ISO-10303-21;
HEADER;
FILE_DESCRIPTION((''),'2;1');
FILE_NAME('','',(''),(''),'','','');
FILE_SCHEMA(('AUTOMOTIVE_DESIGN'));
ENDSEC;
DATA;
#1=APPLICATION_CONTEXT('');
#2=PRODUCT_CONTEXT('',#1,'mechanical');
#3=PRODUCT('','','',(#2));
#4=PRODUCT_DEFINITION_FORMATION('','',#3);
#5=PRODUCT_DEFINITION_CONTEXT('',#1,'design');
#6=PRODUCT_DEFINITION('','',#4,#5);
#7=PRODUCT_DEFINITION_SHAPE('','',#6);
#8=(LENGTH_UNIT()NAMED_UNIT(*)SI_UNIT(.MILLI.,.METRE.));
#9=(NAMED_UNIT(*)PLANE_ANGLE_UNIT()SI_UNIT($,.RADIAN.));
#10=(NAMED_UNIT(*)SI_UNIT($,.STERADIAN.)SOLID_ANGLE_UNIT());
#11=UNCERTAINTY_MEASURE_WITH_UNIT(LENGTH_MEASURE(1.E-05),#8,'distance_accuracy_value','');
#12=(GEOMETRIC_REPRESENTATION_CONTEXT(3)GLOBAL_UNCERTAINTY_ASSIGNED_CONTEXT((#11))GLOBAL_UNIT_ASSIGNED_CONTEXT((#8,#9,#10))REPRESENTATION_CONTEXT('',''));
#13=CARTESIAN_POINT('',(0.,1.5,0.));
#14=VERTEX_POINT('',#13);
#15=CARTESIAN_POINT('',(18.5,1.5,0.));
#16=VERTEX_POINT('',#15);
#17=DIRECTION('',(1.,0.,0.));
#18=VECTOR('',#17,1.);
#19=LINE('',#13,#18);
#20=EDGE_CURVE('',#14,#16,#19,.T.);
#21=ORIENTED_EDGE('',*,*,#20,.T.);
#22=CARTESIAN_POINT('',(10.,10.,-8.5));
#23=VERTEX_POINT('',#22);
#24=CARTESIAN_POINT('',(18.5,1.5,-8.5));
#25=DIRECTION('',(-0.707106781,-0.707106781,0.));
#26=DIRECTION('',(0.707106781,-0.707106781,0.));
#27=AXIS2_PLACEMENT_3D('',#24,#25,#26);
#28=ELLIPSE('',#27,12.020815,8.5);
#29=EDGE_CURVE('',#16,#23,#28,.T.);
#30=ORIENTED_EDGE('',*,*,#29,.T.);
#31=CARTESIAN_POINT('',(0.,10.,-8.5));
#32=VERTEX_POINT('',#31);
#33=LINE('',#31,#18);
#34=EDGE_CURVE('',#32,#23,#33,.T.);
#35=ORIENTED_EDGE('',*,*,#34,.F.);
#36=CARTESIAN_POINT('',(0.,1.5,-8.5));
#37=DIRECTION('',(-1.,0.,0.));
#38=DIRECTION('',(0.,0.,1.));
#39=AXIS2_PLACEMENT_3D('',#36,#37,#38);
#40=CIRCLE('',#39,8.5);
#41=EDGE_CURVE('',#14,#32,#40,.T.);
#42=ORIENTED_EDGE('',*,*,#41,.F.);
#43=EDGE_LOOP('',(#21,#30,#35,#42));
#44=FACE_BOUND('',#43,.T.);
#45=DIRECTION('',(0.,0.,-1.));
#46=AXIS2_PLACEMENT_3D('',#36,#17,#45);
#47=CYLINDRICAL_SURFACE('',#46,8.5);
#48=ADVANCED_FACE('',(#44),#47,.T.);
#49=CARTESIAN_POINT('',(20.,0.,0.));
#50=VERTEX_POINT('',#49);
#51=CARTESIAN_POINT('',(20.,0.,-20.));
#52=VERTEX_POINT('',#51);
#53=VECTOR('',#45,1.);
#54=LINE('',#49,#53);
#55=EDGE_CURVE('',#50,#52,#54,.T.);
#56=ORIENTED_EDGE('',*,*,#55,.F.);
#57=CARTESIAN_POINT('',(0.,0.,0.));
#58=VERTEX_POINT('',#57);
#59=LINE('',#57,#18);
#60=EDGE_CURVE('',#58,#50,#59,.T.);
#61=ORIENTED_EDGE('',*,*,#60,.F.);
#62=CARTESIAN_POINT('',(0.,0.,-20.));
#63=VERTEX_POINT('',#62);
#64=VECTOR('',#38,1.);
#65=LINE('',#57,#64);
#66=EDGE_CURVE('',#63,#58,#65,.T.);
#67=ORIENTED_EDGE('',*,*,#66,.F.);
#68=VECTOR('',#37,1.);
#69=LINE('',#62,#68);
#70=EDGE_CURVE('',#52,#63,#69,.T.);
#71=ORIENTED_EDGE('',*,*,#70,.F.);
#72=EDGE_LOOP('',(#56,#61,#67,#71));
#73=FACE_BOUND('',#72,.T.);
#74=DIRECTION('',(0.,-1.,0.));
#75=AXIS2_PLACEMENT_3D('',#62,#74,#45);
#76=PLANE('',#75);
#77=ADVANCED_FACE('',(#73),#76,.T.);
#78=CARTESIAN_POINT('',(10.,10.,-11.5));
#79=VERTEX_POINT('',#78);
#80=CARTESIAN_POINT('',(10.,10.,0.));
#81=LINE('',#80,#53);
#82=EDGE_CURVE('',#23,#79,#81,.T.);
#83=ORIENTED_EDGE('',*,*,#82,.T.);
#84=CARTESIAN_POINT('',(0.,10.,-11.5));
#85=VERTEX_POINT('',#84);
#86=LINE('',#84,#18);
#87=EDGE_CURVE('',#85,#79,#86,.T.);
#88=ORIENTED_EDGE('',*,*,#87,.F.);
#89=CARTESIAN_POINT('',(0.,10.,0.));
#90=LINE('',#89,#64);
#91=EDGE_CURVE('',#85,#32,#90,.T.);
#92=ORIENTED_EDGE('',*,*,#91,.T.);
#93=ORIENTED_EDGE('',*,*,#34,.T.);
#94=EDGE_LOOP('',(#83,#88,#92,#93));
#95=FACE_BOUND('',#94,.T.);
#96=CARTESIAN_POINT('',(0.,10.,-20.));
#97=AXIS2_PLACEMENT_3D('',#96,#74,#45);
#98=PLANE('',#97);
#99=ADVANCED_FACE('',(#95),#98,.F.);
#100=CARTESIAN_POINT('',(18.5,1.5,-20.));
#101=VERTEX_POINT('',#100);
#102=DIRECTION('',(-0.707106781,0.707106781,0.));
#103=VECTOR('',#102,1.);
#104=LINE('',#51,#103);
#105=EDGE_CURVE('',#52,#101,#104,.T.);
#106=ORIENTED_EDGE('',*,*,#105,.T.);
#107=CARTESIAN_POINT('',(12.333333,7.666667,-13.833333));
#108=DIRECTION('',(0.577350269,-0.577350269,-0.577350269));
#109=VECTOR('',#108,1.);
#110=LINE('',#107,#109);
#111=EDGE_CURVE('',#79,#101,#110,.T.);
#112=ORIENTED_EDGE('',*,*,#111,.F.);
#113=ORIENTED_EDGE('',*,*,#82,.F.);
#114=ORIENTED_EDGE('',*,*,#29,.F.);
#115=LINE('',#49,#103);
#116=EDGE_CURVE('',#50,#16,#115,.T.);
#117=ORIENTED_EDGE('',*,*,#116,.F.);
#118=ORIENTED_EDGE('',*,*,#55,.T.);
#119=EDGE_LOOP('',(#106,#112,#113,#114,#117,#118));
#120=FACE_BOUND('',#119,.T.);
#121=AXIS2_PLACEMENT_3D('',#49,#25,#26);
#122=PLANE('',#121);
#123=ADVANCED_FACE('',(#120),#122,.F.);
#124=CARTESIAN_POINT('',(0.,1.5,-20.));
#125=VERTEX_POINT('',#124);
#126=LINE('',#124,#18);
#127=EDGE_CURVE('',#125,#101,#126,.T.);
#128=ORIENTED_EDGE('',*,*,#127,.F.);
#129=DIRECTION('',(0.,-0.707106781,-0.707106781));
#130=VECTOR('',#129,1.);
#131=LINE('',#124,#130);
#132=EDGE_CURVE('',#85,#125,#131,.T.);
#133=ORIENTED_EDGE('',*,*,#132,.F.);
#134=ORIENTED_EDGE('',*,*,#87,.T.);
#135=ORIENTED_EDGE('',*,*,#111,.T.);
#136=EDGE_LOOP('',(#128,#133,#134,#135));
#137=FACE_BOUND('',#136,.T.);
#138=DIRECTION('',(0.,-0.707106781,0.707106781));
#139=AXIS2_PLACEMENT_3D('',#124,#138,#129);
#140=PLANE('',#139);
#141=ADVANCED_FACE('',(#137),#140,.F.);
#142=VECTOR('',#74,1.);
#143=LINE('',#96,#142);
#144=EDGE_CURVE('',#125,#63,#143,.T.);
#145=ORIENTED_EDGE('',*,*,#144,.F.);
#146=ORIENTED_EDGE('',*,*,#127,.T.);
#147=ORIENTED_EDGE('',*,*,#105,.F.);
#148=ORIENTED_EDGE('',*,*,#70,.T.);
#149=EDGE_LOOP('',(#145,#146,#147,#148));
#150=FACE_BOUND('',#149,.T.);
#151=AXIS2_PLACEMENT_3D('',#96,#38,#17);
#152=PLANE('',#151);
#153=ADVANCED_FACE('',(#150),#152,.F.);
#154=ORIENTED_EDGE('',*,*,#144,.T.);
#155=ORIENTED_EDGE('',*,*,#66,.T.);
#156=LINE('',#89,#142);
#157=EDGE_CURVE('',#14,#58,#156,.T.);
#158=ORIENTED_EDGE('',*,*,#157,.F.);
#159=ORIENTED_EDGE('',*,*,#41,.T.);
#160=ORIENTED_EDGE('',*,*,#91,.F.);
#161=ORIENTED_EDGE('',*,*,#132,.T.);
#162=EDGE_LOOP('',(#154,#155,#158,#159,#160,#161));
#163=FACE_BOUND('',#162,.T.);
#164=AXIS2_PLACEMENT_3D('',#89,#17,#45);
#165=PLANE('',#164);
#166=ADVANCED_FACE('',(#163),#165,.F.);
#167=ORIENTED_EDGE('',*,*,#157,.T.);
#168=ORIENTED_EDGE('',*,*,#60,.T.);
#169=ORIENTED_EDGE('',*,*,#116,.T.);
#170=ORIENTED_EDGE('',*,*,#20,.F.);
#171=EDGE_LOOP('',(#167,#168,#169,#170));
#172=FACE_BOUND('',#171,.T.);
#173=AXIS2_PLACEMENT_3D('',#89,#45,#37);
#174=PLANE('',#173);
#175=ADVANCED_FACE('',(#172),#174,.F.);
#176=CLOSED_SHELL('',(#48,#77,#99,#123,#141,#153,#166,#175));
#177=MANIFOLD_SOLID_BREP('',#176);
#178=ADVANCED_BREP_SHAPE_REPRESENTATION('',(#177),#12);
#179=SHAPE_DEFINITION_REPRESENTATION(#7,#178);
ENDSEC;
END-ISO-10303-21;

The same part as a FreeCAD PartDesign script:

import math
import FreeCAD as App
import Part
import Sketcher

V = App.Vector


def add_polygon(sketch, points):
    """Adds a closed chain of lines whose ends are joined by coincident constraints."""
    first, n = sketch.GeometryCount, len(points)
    for a, b in zip(points, points[1:] + points[:1]):
        sketch.addGeometry(Part.LineSegment(App.Vector(*a, 0), App.Vector(*b, 0)), False)
    for i in range(n):
        sketch.addConstraint(Sketcher.Constraint("Coincident", first + i, 2, first + (i + 1) % n, 1))

doc = App.newDocument("Part")
body = doc.addObject("PartDesign::Body", "Body")

# Sketch on XZ plane
sketch1 = doc.addObject("Sketcher::SketchObject", "Sketch")
body.addObject(sketch1)
sketch1.AttachmentSupport = (doc.XZ_Plane, [""])
sketch1.MapMode = "FlatFace"
add_polygon(sketch1, [(0, -20), (0, 0), (20, 0), (20, -20)])  # lines 0-3
sketch1.addConstraint([
    Sketcher.Constraint("Vertical", 0),
    Sketcher.Constraint("Horizontal", 1),
    Sketcher.Constraint("Vertical", 2),
    Sketcher.Constraint("Horizontal", 3),
    Sketcher.Constraint("Coincident", 0, 2, -1, 1),
    Sketcher.Constraint("Equal", 3, 0),
    Sketcher.Constraint("DistanceX", 1, 1, 1, 2, 20.0),
])
pad1 = doc.addObject("PartDesign::Pad", "Pad")
body.addObject(pad1)
pad1.Profile = sketch1
pad1.Length = 10
pad1.Reversed = True

# Sketch on YZ plane
sketch2 = doc.addObject("Sketcher::SketchObject", "Sketch001")
body.addObject(sketch2)
sketch2.AttachmentSupport = (doc.YZ_Plane, [""])
sketch2.MapMode = "FlatFace"
sketch2.AttachmentOffset = App.Placement(V(0, 0, 20), App.Rotation())
add_polygon(sketch2, [(10, -12), (2, -20), (10, -20)])  # lines 0-2
sketch2.addGeometry(Part.LineSegment(V(10, 0, 0), V(2, 0, 0)), False)  # 3
sketch2.addGeometry(Part.ArcOfCircle(Part.Circle(V(2, -8, 0), V(0, 0, 1), 8), math.radians(0), math.radians(90)), False)  # 4
sketch2.addGeometry(Part.LineSegment(V(10, -8, 0), V(10, 0, 0)), False)  # 5
sketch2.addConstraint([
    Sketcher.Constraint("Tangent", 3, 2, 4, 2),
    Sketcher.Constraint("Tangent", 4, 1, 5, 1),
    Sketcher.Constraint("Coincident", 5, 2, 3, 1),
    Sketcher.Constraint("Horizontal", 1),
    Sketcher.Constraint("Vertical", 2),
    Sketcher.Constraint("Horizontal", 3),
    Sketcher.Constraint("Vertical", 5),
    Sketcher.Constraint("PointOnObject", 3, 2, -1),
    Sketcher.Constraint("Vertical", 4, 3, 0, 2),
    Sketcher.Constraint("Vertical", 2, 2, 4, 1),
    Sketcher.Constraint("Equal", 3, 2),
    Sketcher.Constraint("Radius", 4, 8.5),
    Sketcher.Constraint("DistanceY", 0, 2, -1, 1, 20.0),
    Sketcher.Constraint("DistanceX", -1, 1, 1, 2, 10.0),
])
pocket1 = doc.addObject("PartDesign::Pocket", "Pocket")
body.addObject(pocket1)
pocket1.Profile = sketch2
pocket1.Type = "ThroughAll"

# Sketch on XY plane
sketch3 = doc.addObject("Sketcher::SketchObject", "Sketch002")
body.addObject(sketch3)
sketch3.AttachmentSupport = (doc.XY_Plane, [""])
sketch3.MapMode = "FlatFace"
sketch3.AttachmentOffset = App.Placement(V(0, 0, -20), App.Rotation())
add_polygon(sketch3, [(20, 0), (10, 10), (20, 10)])  # lines 0-2
sketch3.addConstraint([
    Sketcher.Constraint("Horizontal", 1),
    Sketcher.Constraint("Vertical", 2),
    Sketcher.Constraint("PointOnObject", 2, 2, -1),
    Sketcher.Constraint("Equal", 1, 2),
    Sketcher.Constraint("DistanceX", 1, 1, 1, 2, 10.0),
    Sketcher.Constraint("DistanceX", -1, 1, 0, 2, 10.0),
])
pocket2 = doc.addObject("PartDesign::Pocket", "Pocket001")
body.addObject(pocket2)
pocket2.Profile = sketch3
pocket2.Type = "ThroughAll"
pocket2.Reversed = True

doc.recompute()
